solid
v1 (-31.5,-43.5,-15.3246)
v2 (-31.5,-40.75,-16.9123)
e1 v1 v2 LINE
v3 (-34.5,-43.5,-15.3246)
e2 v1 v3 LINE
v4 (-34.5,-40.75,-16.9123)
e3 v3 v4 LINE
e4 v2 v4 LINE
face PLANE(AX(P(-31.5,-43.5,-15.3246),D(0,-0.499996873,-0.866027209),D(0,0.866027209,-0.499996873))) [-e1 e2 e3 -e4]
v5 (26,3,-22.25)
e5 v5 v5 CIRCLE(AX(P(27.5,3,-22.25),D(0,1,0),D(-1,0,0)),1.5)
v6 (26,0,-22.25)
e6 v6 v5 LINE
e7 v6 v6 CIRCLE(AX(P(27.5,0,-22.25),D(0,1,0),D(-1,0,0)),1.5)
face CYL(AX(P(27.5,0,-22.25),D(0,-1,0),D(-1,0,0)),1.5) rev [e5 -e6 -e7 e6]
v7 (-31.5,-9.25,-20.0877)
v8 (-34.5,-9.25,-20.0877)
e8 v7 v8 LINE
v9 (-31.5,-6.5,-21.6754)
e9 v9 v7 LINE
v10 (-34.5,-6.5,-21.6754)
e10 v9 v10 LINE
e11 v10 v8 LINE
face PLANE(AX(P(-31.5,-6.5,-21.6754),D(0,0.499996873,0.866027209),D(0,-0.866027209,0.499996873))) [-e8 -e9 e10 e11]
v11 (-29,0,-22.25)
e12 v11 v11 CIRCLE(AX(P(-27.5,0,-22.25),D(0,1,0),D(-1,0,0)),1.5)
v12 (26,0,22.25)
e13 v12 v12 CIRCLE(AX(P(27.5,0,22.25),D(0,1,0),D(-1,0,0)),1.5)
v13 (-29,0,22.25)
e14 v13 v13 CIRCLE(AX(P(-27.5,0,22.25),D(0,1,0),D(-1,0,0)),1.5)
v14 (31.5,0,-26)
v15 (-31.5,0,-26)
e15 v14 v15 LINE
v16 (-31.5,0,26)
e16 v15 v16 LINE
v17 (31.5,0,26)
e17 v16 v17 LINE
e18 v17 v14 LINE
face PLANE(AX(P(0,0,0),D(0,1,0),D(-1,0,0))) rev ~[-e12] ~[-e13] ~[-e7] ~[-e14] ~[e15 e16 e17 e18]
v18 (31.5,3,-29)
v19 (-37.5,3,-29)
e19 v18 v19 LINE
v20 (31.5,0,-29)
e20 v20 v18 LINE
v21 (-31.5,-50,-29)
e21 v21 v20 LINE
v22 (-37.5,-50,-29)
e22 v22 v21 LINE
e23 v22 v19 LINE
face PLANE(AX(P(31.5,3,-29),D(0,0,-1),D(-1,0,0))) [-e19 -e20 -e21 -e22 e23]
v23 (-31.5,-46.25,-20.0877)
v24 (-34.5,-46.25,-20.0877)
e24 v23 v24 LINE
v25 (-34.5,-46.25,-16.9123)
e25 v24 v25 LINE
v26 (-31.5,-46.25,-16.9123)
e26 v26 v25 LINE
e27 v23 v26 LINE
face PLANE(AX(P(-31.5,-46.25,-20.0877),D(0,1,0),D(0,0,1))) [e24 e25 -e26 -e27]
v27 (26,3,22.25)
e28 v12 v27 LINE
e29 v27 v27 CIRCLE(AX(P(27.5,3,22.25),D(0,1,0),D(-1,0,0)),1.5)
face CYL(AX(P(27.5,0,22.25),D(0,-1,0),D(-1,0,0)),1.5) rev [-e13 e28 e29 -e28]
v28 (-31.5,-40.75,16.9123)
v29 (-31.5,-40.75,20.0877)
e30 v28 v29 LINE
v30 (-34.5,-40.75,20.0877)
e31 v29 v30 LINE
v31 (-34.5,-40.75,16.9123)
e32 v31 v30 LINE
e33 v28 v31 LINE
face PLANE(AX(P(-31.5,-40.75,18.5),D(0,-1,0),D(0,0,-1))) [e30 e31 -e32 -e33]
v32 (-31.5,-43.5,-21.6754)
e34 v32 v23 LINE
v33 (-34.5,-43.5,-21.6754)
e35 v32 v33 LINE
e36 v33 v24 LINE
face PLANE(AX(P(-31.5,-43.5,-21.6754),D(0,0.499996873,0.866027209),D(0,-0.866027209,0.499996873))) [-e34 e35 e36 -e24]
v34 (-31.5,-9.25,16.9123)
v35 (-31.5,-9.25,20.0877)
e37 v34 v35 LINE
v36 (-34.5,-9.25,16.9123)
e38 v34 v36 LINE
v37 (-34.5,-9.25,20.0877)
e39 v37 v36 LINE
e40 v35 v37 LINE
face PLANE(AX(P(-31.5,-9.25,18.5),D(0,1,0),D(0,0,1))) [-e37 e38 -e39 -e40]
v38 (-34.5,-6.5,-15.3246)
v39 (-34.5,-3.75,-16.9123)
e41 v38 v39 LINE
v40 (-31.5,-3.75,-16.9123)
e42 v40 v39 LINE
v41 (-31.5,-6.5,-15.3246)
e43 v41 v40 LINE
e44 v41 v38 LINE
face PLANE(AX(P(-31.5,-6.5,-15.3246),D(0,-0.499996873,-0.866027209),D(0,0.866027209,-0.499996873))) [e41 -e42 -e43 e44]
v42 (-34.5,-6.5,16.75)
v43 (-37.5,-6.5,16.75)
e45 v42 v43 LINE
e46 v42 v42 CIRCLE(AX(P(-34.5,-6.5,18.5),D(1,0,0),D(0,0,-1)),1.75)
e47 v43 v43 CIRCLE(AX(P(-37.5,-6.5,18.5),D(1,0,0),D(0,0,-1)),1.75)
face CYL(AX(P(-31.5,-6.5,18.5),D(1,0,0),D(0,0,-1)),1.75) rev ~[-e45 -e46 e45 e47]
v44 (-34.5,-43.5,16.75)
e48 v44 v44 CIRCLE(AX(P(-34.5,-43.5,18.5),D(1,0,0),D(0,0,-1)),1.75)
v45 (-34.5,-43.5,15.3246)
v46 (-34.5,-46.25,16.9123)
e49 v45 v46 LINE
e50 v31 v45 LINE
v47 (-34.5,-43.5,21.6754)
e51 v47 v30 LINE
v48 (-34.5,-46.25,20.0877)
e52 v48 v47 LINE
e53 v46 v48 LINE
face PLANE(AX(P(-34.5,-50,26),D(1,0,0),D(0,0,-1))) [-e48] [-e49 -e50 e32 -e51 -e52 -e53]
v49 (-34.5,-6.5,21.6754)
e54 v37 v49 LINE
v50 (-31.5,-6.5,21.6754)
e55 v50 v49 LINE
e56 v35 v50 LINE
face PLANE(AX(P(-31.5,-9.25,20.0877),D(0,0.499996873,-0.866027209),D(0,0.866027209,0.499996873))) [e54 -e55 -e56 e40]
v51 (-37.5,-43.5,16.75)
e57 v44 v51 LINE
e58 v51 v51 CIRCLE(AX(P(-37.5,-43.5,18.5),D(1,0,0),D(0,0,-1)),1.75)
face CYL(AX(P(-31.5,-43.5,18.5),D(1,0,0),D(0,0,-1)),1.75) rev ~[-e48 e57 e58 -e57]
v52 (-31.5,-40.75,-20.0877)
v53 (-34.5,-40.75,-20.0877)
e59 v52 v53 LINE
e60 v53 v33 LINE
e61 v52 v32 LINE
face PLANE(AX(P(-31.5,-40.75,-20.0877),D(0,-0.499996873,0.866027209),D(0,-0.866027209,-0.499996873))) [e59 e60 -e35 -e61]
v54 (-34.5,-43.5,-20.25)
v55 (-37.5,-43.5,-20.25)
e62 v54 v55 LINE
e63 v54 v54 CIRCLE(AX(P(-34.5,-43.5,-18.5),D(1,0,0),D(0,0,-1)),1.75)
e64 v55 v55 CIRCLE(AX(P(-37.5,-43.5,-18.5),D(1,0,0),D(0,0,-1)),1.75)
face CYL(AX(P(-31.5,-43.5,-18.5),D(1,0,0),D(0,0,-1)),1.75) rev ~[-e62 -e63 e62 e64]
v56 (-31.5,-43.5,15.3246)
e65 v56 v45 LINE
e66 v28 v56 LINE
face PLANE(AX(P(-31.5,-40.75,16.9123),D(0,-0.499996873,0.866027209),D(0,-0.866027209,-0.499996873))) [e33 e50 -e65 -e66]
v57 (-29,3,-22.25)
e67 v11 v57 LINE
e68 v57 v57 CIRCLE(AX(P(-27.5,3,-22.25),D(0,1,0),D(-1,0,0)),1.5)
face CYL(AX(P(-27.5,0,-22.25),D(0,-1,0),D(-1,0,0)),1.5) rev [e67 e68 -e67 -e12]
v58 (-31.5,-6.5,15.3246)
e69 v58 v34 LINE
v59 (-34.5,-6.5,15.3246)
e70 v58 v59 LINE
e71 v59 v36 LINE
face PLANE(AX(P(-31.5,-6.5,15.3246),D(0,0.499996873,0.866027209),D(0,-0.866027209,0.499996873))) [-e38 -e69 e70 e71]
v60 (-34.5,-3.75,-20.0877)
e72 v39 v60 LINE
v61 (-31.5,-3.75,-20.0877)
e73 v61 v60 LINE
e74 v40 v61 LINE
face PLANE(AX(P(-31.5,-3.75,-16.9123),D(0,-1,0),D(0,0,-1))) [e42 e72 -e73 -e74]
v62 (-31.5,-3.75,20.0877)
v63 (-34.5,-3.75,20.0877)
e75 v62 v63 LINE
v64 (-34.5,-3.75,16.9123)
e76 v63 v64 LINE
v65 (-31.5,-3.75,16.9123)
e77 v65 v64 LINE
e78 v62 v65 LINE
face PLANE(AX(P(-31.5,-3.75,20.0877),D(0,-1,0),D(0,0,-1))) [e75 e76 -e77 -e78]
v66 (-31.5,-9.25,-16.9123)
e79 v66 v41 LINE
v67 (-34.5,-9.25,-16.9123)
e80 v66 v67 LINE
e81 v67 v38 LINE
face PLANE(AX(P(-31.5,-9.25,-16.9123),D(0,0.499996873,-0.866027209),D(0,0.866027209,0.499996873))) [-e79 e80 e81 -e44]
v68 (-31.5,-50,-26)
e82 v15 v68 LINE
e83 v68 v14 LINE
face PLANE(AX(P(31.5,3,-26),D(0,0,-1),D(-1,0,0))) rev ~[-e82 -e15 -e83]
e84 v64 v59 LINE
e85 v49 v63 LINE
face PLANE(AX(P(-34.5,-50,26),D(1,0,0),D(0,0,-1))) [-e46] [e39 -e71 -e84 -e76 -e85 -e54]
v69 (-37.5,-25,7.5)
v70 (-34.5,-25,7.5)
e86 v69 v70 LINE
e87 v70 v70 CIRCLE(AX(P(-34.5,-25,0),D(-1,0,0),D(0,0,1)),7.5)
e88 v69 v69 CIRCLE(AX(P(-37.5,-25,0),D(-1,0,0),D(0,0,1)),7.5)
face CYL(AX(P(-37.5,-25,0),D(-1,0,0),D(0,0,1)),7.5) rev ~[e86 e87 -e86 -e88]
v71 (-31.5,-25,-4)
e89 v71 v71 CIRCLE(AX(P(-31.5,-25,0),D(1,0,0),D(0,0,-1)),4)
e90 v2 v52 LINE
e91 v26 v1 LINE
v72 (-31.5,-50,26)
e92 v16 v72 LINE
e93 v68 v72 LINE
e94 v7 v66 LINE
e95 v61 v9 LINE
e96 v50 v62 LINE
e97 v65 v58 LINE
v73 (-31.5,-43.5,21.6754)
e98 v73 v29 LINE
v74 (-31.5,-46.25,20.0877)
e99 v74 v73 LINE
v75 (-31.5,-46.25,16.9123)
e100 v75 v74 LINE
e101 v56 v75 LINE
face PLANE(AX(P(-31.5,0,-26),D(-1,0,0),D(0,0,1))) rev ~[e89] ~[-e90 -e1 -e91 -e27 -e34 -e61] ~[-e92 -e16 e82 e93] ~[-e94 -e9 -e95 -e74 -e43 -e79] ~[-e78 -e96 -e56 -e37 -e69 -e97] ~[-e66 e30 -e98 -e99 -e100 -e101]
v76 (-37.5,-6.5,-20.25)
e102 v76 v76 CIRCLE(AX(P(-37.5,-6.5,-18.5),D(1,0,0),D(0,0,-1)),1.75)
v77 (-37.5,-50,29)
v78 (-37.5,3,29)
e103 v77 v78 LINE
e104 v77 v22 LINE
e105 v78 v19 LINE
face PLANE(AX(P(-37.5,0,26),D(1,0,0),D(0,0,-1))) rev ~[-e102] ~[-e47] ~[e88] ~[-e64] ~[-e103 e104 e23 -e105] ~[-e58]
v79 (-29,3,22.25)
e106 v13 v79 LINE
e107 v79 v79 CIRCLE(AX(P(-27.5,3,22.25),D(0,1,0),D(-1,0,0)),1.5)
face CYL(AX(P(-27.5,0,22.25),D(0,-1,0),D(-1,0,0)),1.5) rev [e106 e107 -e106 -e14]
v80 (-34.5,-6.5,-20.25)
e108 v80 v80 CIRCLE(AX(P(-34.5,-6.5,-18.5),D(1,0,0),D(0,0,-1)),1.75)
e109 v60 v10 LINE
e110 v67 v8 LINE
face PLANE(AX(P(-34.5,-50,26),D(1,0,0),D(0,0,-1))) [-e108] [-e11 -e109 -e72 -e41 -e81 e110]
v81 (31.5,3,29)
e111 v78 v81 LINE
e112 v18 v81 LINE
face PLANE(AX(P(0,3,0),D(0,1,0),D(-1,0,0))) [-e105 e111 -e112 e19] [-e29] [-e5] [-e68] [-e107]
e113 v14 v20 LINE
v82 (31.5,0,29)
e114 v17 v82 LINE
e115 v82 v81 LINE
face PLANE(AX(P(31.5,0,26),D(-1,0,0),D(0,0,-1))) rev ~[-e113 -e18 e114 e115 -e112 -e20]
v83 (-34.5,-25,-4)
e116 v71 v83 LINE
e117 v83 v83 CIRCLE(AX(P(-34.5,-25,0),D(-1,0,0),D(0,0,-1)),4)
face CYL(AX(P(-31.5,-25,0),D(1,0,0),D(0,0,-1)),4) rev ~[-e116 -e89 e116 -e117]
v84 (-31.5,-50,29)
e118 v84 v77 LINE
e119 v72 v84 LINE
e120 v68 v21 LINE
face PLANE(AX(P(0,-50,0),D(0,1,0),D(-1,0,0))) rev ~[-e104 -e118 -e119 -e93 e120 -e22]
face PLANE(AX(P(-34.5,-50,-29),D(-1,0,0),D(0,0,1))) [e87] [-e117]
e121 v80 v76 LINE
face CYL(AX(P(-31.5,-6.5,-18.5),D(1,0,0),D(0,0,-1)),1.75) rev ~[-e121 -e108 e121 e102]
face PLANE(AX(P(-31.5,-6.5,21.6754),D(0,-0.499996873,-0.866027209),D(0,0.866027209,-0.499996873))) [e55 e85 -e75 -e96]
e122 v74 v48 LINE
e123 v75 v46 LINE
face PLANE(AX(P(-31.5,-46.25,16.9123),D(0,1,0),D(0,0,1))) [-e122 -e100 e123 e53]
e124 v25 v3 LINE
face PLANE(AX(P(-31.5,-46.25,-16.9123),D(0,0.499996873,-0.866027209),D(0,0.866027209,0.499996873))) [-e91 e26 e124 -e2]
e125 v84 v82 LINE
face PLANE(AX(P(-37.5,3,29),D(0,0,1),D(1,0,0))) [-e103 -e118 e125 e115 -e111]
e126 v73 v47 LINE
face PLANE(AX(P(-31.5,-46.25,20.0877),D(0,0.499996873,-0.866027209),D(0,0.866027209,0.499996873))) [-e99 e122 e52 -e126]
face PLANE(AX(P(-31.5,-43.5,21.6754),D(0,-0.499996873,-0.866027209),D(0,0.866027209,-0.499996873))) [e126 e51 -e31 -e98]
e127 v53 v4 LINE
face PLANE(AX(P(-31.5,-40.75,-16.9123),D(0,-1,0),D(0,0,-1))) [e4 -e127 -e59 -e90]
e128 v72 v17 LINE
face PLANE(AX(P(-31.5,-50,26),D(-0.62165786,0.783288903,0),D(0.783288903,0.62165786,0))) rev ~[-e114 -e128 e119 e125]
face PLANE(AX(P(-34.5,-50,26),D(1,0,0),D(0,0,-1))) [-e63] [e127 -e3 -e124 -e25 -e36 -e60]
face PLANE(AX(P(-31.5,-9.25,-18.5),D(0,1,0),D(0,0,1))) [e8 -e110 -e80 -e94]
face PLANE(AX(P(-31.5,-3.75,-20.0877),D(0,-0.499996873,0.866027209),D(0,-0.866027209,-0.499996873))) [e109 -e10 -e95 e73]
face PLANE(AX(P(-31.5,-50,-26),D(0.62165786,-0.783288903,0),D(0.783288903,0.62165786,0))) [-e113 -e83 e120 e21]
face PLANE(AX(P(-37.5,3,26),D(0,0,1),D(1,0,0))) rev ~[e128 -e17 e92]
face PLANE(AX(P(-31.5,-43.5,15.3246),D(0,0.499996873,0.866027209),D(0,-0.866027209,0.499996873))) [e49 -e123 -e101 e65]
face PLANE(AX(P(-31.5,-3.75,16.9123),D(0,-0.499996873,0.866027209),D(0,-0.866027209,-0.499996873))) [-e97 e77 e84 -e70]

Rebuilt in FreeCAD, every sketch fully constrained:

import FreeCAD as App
import Part
import Sketcher
Q = App.Units.Quantity


def add_polygon(sketch, points):
    """Adds a closed chain of lines whose ends are joined by coincident constraints."""
    first, n = sketch.GeometryCount, len(points)
    for a, b in zip(points, points[1:] + points[:1]):
        sketch.addGeometry(Part.LineSegment(App.Vector(*a, 0), App.Vector(*b, 0)), False)
    for i in range(n):
        sketch.addConstraint(Sketcher.Constraint("Coincident", first + i, 2, first + (i + 1) % n, 1))

doc = App.newDocument("Part")
body = doc.addObject("PartDesign::Body", "Body")

sketch1 = body.newObject("Sketcher::SketchObject", "Sketch")
sketch1.AttachmentSupport = (doc.getObject("XZ_Plane"), [""])
sketch1.MapMode = "FlatFace"
add_polygon(sketch1, [(31.5, 26), (31.5, -26), (-37.5, -26), (-37.5, 26)])
sketch1.addGeometry(Part.Circle(App.Vector(27.5, -22.2, 0), App.Vector(0, 0, 1), 1.5), False)
sketch1.addGeometry(Part.Circle(App.Vector(-27.5, -22.2, 0), App.Vector(0, 0, 1), 1.5), False)
sketch1.addGeometry(Part.Circle(App.Vector(27.5, 22.2, 0), App.Vector(0, 0, 1), 1.5), False)
sketch1.addGeometry(Part.Circle(App.Vector(-27.5, 22.2, 0), App.Vector(0, 0, 1), 1.5), False)
sketch1.addConstraint(Sketcher.Constraint("Vertical", 0))
sketch1.addConstraint(Sketcher.Constraint("Horizontal", 1))
sketch1.addConstraint(Sketcher.Constraint("Vertical", 2))
sketch1.addConstraint(Sketcher.Constraint("Horizontal", 3))
sketch1.addConstraint(Sketcher.Constraint("Equal", 4, 5))
sketch1.addConstraint(Sketcher.Constraint("Equal", 5, 6))
sketch1.addConstraint(Sketcher.Constraint("Equal", 6, 7))
sketch1.addConstraint(Sketcher.Constraint("Symmetric", 5, 3, 6, 3, -1, 1))
sketch1.addConstraint(Sketcher.Constraint("Symmetric", 4, 3, 7, 3, -1, 1))
sketch1.addConstraint(Sketcher.Constraint("Symmetric", 4, 3, 5, 3, -2))
sketch1.addConstraint(Sketcher.Constraint("Diameter", 4, 3.0))
sketch1.addConstraint(Sketcher.Constraint("DistanceY", 0, 2, 0, 1, 52.0))
sketch1.addConstraint(Sketcher.Constraint("DistanceX", 5, 3, 4, 3, 55.0))
sketch1.addConstraint(Sketcher.Constraint("DistanceY", 4, 3, 6, 3, 44.5))
sketch1.addConstraint(Sketcher.Constraint("DistanceX", 1, 2, 1, 1, 69.0))
sketch1.addConstraint(Sketcher.Constraint("DistanceY", 0, 2, -1, 1, 26.0))
sketch1.addConstraint(Sketcher.Constraint("DistanceX", 4, 3, 0, 2, 4.0))
pad1 = body.newObject("PartDesign::Pad", "Pad")
pad1.Profile = sketch1
pad1.Length = 3
pad1.Reversed = True

sketch2 = body.newObject("Sketcher::SketchObject", "Sketch001")
sketch2.AttachmentSupport = (doc.getObject("XZ_Plane"), [""])
sketch2.MapMode = "FlatFace"
add_polygon(sketch2, [(-32, 26), (-32, -26), (-38, -26), (-38, 26)])
sketch2.addConstraint(Sketcher.Constraint("Vertical", 0))
sketch2.addConstraint(Sketcher.Constraint("Horizontal", 1))
sketch2.addConstraint(Sketcher.Constraint("Vertical", 2))
sketch2.addConstraint(Sketcher.Constraint("Horizontal", 3))
sketch2.addConstraint(Sketcher.Constraint("DistanceX", 1, 2, 1, 1, 6.0))
sketch2.addConstraint(Sketcher.Constraint("DistanceY", 0, 2, 0, 1, 52.0))
sketch2.addConstraint(Sketcher.Constraint("DistanceY", 0, 2, -1, 1, 26.0))
sketch2.addConstraint(Sketcher.Constraint("DistanceX", 0, 2, -1, 1, 31.5))
pad2 = body.newObject("PartDesign::Pad", "Pad001")
pad2.Profile = sketch2
pad2.Length = 50

sketch3 = body.newObject("Sketcher::SketchObject", "Sketch002")
sketch3.AttachmentSupport = (doc.getObject("YZ_Plane"), [""])
sketch3.MapMode = "FlatFace"
sketch3.AttachmentOffset = App.Placement(App.Vector(0, 0, -31.5), App.Rotation())
sketch3.addGeometry(Part.Circle(App.Vector(-43.5, 18.5, 0), App.Vector(0, 0, 1), 1.8), False)
sketch3.addGeometry(Part.Circle(App.Vector(-43.5, -18.5, 0), App.Vector(0, 0, 1), 1.8), False)
sketch3.addGeometry(Part.Circle(App.Vector(-6.5, 18.5, 0), App.Vector(0, 0, 1), 1.8), False)
sketch3.addGeometry(Part.Circle(App.Vector(-6.5, -18.5, 0), App.Vector(0, 0, 1), 1.8), False)
sketch3.addGeometry(Part.Circle(App.Vector(-25, 0, 0), App.Vector(0, 0, 1), 4), False)
sketch3.addConstraint(Sketcher.Constraint("Equal", 0, 1))
sketch3.addConstraint(Sketcher.Constraint("Equal", 1, 2))
sketch3.addConstraint(Sketcher.Constraint("Equal", 2, 3))
sketch3.addConstraint(Sketcher.Constraint("Symmetric", 0, 3, 1, 3, -1))
sketch3.addConstraint(Sketcher.Constraint("Symmetric", 2, 3, 3, 3, -1))
sketch3.addConstraint(Sketcher.Constraint("PointOnObject", 4, 3, -1))
sketch3.addConstraint(Sketcher.Constraint("Horizontal", 0, 3, 2, 3))
sketch3.addConstraint(Sketcher.Constraint("Diameter", 4, 8.0))
sketch3.addConstraint(Sketcher.Constraint("Diameter", 0, 3.5))
sketch3.addConstraint(Sketcher.Constraint("DistanceY", 1, 3, 0, 3, 37.0))
sketch3.addConstraint(Sketcher.Constraint("DistanceX", 0, 3, 2, 3, 37.0))
sketch3.addConstraint(Sketcher.Constraint("DistanceX", 4, 3, -1, 1, 25.0))
sketch3.addConstraint(Sketcher.Constraint("DistanceX", 0, 3, -1, 1, 43.5))
pocket1 = body.newObject("PartDesign::Pocket", "Pocket")
pocket1.Profile = sketch3
pocket1.Type = "ThroughAll"

sketch4 = body.newObject("Sketcher::SketchObject", "Sketch003")
sketch4.AttachmentSupport = (doc.getObject("YZ_Plane"), [""])
sketch4.MapMode = "FlatFace"
sketch4.AttachmentOffset = App.Placement(App.Vector(0, 0, -31.5), App.Rotation())
add_polygon(sketch4, [(-40.8, 16.9), (-40.8, 20.1), (-43.5, 21.7), (-46.2, 20.1), (-46.2, 16.9), (-43.5, 15.3)])
add_polygon(sketch4, [(-40.8, -16.9), (-43.5, -15.3), (-46.2, -16.9), (-46.2, -20.1), (-43.5, -21.7), (-40.8, -20.1)])
add_polygon(sketch4, [(-9.2, 20.1), (-9.2, 16.9), (-6.5, 15.3), (-3.8, 16.9), (-3.8, 20.1), (-6.5, 21.7)])
add_polygon(sketch4, [(-9.2, -16.9), (-9.2, -20.1), (-6.5, -21.7), (-3.8, -20.1), (-3.8, -16.9), (-6.5, -15.3)])
sketch4.addConstraint(Sketcher.Constraint("Vertical", 0))
sketch4.addConstraint(Sketcher.Constraint("Vertical", 3))
sketch4.addConstraint(Sketcher.Constraint("Vertical", 8))
sketch4.addConstraint(Sketcher.Constraint("Vertical", 11))
sketch4.addConstraint(Sketcher.Constraint("Vertical", 12))
sketch4.addConstraint(Sketcher.Constraint("Vertical", 15))
sketch4.addConstraint(Sketcher.Constraint("Vertical", 18))
sketch4.addConstraint(Sketcher.Constraint("Vertical", 21))
sketch4.addConstraint(Sketcher.Constraint("Symmetric", 4, 2, 6, 2, -1))
sketch4.addConstraint(Sketcher.Constraint("Symmetric", 3, 2, 7, 2, -1))
sketch4.addConstraint(Sketcher.Constraint("Symmetric", 1, 2, 9, 2, -1))
sketch4.addConstraint(Sketcher.Constraint("Symmetric", 0, 2, 10, 2, -1))
sketch4.addConstraint(Sketcher.Constraint("Symmetric", 17, 2, 18, 2, -1))
sketch4.addConstraint(Sketcher.Constraint("Symmetric", 16, 2, 19, 2, -1))
sketch4.addConstraint(Sketcher.Constraint("Symmetric", 15, 2, 20, 2, -1))
sketch4.addConstraint(Sketcher.Constraint("Symmetric", 13, 2, 22, 2, -1))
sketch4.addConstraint(Sketcher.Constraint("Parallel", 1, 4))
sketch4.addConstraint(Sketcher.Constraint("Parallel", 2, 5))
sketch4.addConstraint(Sketcher.Constraint("Parallel", 4, 6))
sketch4.addConstraint(Sketcher.Constraint("Parallel", 5, 7))
sketch4.addConstraint(Sketcher.Constraint("Parallel", 6, 9))
sketch4.addConstraint(Sketcher.Constraint("Parallel", 9, 13))
sketch4.addConstraint(Sketcher.Constraint("Parallel", 10, 14))
sketch4.addConstraint(Sketcher.Constraint("Parallel", 13, 16))
sketch4.addConstraint(Sketcher.Constraint("Parallel", 14, 17))
sketch4.addConstraint(Sketcher.Constraint("Parallel", 19, 22))
sketch4.addConstraint(Sketcher.Constraint("Parallel", 20, 23))
sketch4.addConstraint(Sketcher.Constraint("Horizontal", 0, 2, 2, 2))
sketch4.addConstraint(Sketcher.Constraint("Horizontal", 3, 2, 5, 2))
sketch4.addConstraint(Sketcher.Constraint("Horizontal", 5, 2, 12, 2))
sketch4.addConstraint(Sketcher.Constraint("Horizontal", 4, 2, 13, 2))
sketch4.addConstraint(Sketcher.Constraint("Horizontal", 12, 2, 14, 2))
sketch4.addConstraint(Sketcher.Constraint("Horizontal", 2, 2, 15, 2))
sketch4.addConstraint(Sketcher.Constraint("Horizontal", 1, 2, 16, 2))
sketch4.addConstraint(Sketcher.Constraint("DistanceY", 7, 2, 2, 2, 37.0))
sketch4.addConstraint(Sketcher.Constraint("DistanceX", 3, 2, 12, 2, 37.0))
sketch4.addConstraint(Sketcher.Constraint("DistanceX", 2, 2, 0, 2, 5.5))
sketch4.addConstraint(Sketcher.Constraint("Angle", 1, Q("150.0002 deg")))
sketch4.addConstraint(Sketcher.Constraint("DistanceX", 1, 2, -1, 1, 43.5))
sketch4.addConstraint(Sketcher.Constraint("DistanceY", 0, 1, 0, 2, 3.1754))
pocket2 = body.newObject("PartDesign::Pocket", "Pocket001")
pocket2.Profile = sketch4
pocket2.Length = 3

sketch5 = body.newObject("Sketcher::SketchObject", "Sketch004")
sketch5.AttachmentSupport = (doc.getObject("XY_Plane"), [""])
sketch5.MapMode = "FlatFace"
sketch5.AttachmentOffset = App.Placement(App.Vector(0, 0, -26), App.Rotation())
add_polygon(sketch5, [(31.5, 3), (31.5, 0), (-31.5, -50), (-37.5, -50), (-37.5, 3)])
sketch5.addConstraint(Sketcher.Constraint("Vertical", 0))
sketch5.addConstraint(Sketcher.Constraint("Horizontal", 2))
sketch5.addConstraint(Sketcher.Constraint("Vertical", 3))
sketch5.addConstraint(Sketcher.Constraint("Horizontal", 4))
sketch5.addConstraint(Sketcher.Constraint("PointOnObject", 0, 2, -1))
sketch5.addConstraint(Sketcher.Constraint("DistanceX", 2, 2, 2, 1, 6.0))
sketch5.addConstraint(Sketcher.Constraint("DistanceX", 4, 1, 4, 2, 69.0))
sketch5.addConstraint(Sketcher.Constraint("DistanceY", 0, 2, 0, 1, 3.0))
sketch5.addConstraint(Sketcher.Constraint("DistanceY", 3, 1, 3, 2, 53.0))
sketch5.addConstraint(Sketcher.Constraint("DistanceX", -1, 1, 0, 2, 31.5))
pad3 = body.newObject("PartDesign::Pad", "Pad002")
pad3.Profile = sketch5
pad3.Length = 3
pad3.Reversed = True

sketch6 = body.newObject("Sketcher::SketchObject", "Sketch005")
sketch6.AttachmentSupport = (doc.getObject("XY_Plane"), [""])
sketch6.MapMode = "FlatFace"
sketch6.AttachmentOffset = App.Placement(App.Vector(0, 0, 26), App.Rotation())
add_polygon(sketch6, [(-37.5, -50), (-31.5, -50), (31.5, 0), (31.5, 3), (-37.5, 3)])
sketch6.addConstraint(Sketcher.Constraint("Horizontal", 0))
sketch6.addConstraint(Sketcher.Constraint("Vertical", 2))
sketch6.addConstraint(Sketcher.Constraint("Horizontal", 3))
sketch6.addConstraint(Sketcher.Constraint("Vertical", 4))
sketch6.addConstraint(Sketcher.Constraint("PointOnObject", 1, 2, -1))
sketch6.addConstraint(Sketcher.Constraint("DistanceX", 0, 1, 0, 2, 6.0))
sketch6.addConstraint(Sketcher.Constraint("DistanceX", 3, 2, 3, 1, 69.0))
sketch6.addConstraint(Sketcher.Constraint("DistanceY", 2, 1, 2, 2, 3.0))
sketch6.addConstraint(Sketcher.Constraint("DistanceY", 4, 2, 4, 1, 53.0))
sketch6.addConstraint(Sketcher.Constraint("DistanceX", 0, 2, -1, 1, 31.5))
pad4 = body.newObject("PartDesign::Pad", "Pad003")
pad4.Profile = sketch6
pad4.Length = 3

sketch7 = body.newObject("Sketcher::SketchObject", "Sketch006")
sketch7.AttachmentSupport = (doc.getObject("YZ_Plane"), [""])
sketch7.MapMode = "FlatFace"
sketch7.AttachmentOffset = App.Placement(App.Vector(0, 0, -37.5), App.Rotation())
sketch7.addGeometry(Part.Circle(App.Vector(-25, 0, 0), App.Vector(0, 0, 1), 7.5), False)
sketch7.addGeometry(Part.Circle(App.Vector(-25, 0, 0), App.Vector(0, 0, 1), 4), False)
sketch7.addConstraint(Sketcher.Constraint("Coincident", 1, 3, 0, 3))
sketch7.addConstraint(Sketcher.Constraint("PointOnObject", 0, 3, -1))
sketch7.addConstraint(Sketcher.Constraint("Diameter", 0, 15.0))
sketch7.addConstraint(Sketcher.Constraint("Diameter", 1, 8.0))
sketch7.addConstraint(Sketcher.Constraint("DistanceX", 0, 3, -1, 1, 25.0))
pocket3 = body.newObject("PartDesign::Pocket", "Pocket002")
pocket3.Profile = sketch7
pocket3.Length = 3
pocket3.Reversed = True

doc.recompute()
